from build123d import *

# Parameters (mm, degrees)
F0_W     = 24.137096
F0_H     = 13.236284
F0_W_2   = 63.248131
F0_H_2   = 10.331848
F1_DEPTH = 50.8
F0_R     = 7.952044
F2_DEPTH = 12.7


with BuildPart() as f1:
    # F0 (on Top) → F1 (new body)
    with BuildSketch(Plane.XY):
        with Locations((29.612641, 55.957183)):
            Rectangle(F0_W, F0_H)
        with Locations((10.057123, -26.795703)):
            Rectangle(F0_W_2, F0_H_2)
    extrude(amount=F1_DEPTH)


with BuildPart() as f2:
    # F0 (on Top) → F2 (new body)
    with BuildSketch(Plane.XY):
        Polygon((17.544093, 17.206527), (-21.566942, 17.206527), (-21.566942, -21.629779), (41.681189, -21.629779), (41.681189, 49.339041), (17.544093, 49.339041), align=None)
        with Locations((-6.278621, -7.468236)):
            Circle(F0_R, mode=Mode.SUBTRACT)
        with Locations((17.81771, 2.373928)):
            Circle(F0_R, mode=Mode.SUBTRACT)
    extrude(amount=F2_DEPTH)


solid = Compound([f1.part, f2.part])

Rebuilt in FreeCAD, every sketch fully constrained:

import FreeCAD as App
import Part
import Sketcher
Q = App.Units.Quantity

doc = App.newDocument("Part")
body = doc.addObject("PartDesign::Body", "Body")
body.AllowCompound = True

# Sketch on XY plane
sketch1 = body.newObject("Sketcher::SketchObject", "Sketch")
sketch1.AttachmentSupport = (doc.getObject("XY_Plane"), [""])
sketch1.MapMode = "FlatFace"
sketch1.addGeometry(Part.LineSegment(App.Vector(18, 63, 0), App.Vector(18, 49, 0)), False)
sketch1.addGeometry(Part.LineSegment(App.Vector(18, 49, 0), App.Vector(42, 49, 0)), False)
sketch1.addGeometry(Part.LineSegment(App.Vector(42, 49, 0), App.Vector(42, 63, 0)), False)
sketch1.addGeometry(Part.LineSegment(App.Vector(42, 63, 0), App.Vector(18, 63, 0)), False)
sketch1.addGeometry(Part.LineSegment(App.Vector(-22, -22, 0), App.Vector(-22, -32, 0)), False)
sketch1.addGeometry(Part.LineSegment(App.Vector(-22, -32, 0), App.Vector(42, -32, 0)), False)
sketch1.addGeometry(Part.LineSegment(App.Vector(42, -32, 0), App.Vector(42, -22, 0)), False)
sketch1.addGeometry(Part.LineSegment(App.Vector(42, -22, 0), App.Vector(-22, -22, 0)), False)
sketch1.addConstraint(Sketcher.Constraint("Coincident", 0, 2, 1, 1))
sketch1.addConstraint(Sketcher.Constraint("Coincident", 1, 2, 2, 1))
sketch1.addConstraint(Sketcher.Constraint("Coincident", 2, 2, 3, 1))
sketch1.addConstraint(Sketcher.Constraint("Coincident", 3, 2, 0, 1))
sketch1.addConstraint(Sketcher.Constraint("Coincident", 4, 2, 5, 1))
sketch1.addConstraint(Sketcher.Constraint("Coincident", 5, 2, 6, 1))
sketch1.addConstraint(Sketcher.Constraint("Coincident", 6, 2, 7, 1))
sketch1.addConstraint(Sketcher.Constraint("Coincident", 7, 2, 4, 1))
sketch1.addConstraint(Sketcher.Constraint("Vertical", 0))
sketch1.addConstraint(Sketcher.Constraint("Horizontal", 1))
sketch1.addConstraint(Sketcher.Constraint("Vertical", 2))
sketch1.addConstraint(Sketcher.Constraint("Horizontal", 3))
sketch1.addConstraint(Sketcher.Constraint("Vertical", 4))
sketch1.addConstraint(Sketcher.Constraint("Horizontal", 5))
sketch1.addConstraint(Sketcher.Constraint("Vertical", 6))
sketch1.addConstraint(Sketcher.Constraint("Horizontal", 7))
sketch1.addConstraint(Sketcher.Constraint("Vertical", 2, 2, 5, 2))
sketch1.addConstraint(Sketcher.Constraint("DistanceX", 5, 1, 5, 2, 63.248131))
sketch1.addConstraint(Sketcher.Constraint("DistanceY", 4, 2, 4, 1, 10.331848))
sketch1.addConstraint(Sketcher.Constraint("DistanceX", 1, 1, 1, 2, 24.137096))
sketch1.addConstraint(Sketcher.Constraint("DistanceY", 0, 2, 0, 1, 13.236284))
sketch1.addConstraint(Sketcher.Constraint("DistanceY", -1, 1, 0, 2, 49.339041))
sketch1.addConstraint(Sketcher.Constraint("DistanceX", -1, 1, 1, 2, 41.681189))
sketch1.addConstraint(Sketcher.Constraint("DistanceY", 6, 2, -1, 1, 21.629779))
pad1 = body.newObject("PartDesign::Pad", "Pad")
pad1.Profile = sketch1
pad1.Length = Q("2 in")
body2 = doc.addObject("PartDesign::Body", "Body001")

# Sketch on XY plane
sketch2 = body2.newObject("Sketcher::SketchObject", "Sketch001")
sketch2.AttachmentSupport = (doc.getObject("XY_Plane001"), [""])
sketch2.MapMode = "FlatFace"
sketch2.addGeometry(Part.LineSegment(App.Vector(18, 17, 0), App.Vector(-22, 17, 0)), False)
sketch2.addGeometry(Part.LineSegment(App.Vector(-22, 17, 0), App.Vector(-22, -22, 0)), False)
sketch2.addGeometry(Part.LineSegment(App.Vector(-22, -22, 0), App.Vector(42, -22, 0)), False)
sketch2.addGeometry(Part.LineSegment(App.Vector(42, -22, 0), App.Vector(42, 49, 0)), False)
sketch2.addGeometry(Part.LineSegment(App.Vector(42, 49, 0), App.Vector(18, 49, 0)), False)
sketch2.addGeometry(Part.LineSegment(App.Vector(18, 49, 0), App.Vector(18, 17, 0)), False)
sketch2.addGeometry(Part.Circle(App.Vector(-6, -7, 0), App.Vector(0, 0, 1), 8), False)
sketch2.addGeometry(Part.Circle(App.Vector(18, 2, 0), App.Vector(0, 0, 1), 8), False)
sketch2.addConstraint(Sketcher.Constraint("Coincident", 0, 2, 1, 1))
sketch2.addConstraint(Sketcher.Constraint("Coincident", 1, 2, 2, 1))
sketch2.addConstraint(Sketcher.Constraint("Coincident", 2, 2, 3, 1))
sketch2.addConstraint(Sketcher.Constraint("Coincident", 3, 2, 4, 1))
sketch2.addConstraint(Sketcher.Constraint("Coincident", 4, 2, 5, 1))
sketch2.addConstraint(Sketcher.Constraint("Coincident", 5, 2, 0, 1))
sketch2.addConstraint(Sketcher.Constraint("Horizontal", 0))
sketch2.addConstraint(Sketcher.Constraint("Vertical", 1))
sketch2.addConstraint(Sketcher.Constraint("Horizontal", 2))
sketch2.addConstraint(Sketcher.Constraint("Vertical", 3))
sketch2.addConstraint(Sketcher.Constraint("Horizontal", 4))
sketch2.addConstraint(Sketcher.Constraint("Vertical", 5))
sketch2.addConstraint(Sketcher.Constraint("Equal", 6, 7))
sketch2.addConstraint(Sketcher.Constraint("Diameter", 6, 15.904088))
sketch2.addConstraint(Sketcher.Constraint("DistanceX", 2, 1, 2, 2, 63.248131))
sketch2.addConstraint(Sketcher.Constraint("DistanceY", 3, 1, 3, 2, 70.96882))
sketch2.addConstraint(Sketcher.Constraint("DistanceY", 7, 3, 0, 2, 14.832599))
sketch2.addConstraint(Sketcher.Constraint("DistanceX", 0, 2, 0, 1, 39.111035))
sketch2.addConstraint(Sketcher.Constraint("DistanceY", 1, 2, 1, 1, 38.836306))
sketch2.addConstraint(Sketcher.Constraint("DistanceX", 6, 3, -1, 1, 6.278621))
sketch2.addConstraint(Sketcher.Constraint("DistanceX", -1, 1, 7, 3, 17.81771))
sketch2.addConstraint(Sketcher.Constraint("DistanceY", 1, 2, -1, 1, 21.629779))
sketch2.addConstraint(Sketcher.Constraint("DistanceX", -1, 1, 2, 2, 41.681189))
sketch2.addConstraint(Sketcher.Constraint("DistanceY", 6, 3, -1, 1, 7.468236))
pad2 = body2.newObject("PartDesign::Pad", "Pad001")
pad2.Profile = sketch2
pad2.Length = Q("0.5 in")

doc.recompute()
